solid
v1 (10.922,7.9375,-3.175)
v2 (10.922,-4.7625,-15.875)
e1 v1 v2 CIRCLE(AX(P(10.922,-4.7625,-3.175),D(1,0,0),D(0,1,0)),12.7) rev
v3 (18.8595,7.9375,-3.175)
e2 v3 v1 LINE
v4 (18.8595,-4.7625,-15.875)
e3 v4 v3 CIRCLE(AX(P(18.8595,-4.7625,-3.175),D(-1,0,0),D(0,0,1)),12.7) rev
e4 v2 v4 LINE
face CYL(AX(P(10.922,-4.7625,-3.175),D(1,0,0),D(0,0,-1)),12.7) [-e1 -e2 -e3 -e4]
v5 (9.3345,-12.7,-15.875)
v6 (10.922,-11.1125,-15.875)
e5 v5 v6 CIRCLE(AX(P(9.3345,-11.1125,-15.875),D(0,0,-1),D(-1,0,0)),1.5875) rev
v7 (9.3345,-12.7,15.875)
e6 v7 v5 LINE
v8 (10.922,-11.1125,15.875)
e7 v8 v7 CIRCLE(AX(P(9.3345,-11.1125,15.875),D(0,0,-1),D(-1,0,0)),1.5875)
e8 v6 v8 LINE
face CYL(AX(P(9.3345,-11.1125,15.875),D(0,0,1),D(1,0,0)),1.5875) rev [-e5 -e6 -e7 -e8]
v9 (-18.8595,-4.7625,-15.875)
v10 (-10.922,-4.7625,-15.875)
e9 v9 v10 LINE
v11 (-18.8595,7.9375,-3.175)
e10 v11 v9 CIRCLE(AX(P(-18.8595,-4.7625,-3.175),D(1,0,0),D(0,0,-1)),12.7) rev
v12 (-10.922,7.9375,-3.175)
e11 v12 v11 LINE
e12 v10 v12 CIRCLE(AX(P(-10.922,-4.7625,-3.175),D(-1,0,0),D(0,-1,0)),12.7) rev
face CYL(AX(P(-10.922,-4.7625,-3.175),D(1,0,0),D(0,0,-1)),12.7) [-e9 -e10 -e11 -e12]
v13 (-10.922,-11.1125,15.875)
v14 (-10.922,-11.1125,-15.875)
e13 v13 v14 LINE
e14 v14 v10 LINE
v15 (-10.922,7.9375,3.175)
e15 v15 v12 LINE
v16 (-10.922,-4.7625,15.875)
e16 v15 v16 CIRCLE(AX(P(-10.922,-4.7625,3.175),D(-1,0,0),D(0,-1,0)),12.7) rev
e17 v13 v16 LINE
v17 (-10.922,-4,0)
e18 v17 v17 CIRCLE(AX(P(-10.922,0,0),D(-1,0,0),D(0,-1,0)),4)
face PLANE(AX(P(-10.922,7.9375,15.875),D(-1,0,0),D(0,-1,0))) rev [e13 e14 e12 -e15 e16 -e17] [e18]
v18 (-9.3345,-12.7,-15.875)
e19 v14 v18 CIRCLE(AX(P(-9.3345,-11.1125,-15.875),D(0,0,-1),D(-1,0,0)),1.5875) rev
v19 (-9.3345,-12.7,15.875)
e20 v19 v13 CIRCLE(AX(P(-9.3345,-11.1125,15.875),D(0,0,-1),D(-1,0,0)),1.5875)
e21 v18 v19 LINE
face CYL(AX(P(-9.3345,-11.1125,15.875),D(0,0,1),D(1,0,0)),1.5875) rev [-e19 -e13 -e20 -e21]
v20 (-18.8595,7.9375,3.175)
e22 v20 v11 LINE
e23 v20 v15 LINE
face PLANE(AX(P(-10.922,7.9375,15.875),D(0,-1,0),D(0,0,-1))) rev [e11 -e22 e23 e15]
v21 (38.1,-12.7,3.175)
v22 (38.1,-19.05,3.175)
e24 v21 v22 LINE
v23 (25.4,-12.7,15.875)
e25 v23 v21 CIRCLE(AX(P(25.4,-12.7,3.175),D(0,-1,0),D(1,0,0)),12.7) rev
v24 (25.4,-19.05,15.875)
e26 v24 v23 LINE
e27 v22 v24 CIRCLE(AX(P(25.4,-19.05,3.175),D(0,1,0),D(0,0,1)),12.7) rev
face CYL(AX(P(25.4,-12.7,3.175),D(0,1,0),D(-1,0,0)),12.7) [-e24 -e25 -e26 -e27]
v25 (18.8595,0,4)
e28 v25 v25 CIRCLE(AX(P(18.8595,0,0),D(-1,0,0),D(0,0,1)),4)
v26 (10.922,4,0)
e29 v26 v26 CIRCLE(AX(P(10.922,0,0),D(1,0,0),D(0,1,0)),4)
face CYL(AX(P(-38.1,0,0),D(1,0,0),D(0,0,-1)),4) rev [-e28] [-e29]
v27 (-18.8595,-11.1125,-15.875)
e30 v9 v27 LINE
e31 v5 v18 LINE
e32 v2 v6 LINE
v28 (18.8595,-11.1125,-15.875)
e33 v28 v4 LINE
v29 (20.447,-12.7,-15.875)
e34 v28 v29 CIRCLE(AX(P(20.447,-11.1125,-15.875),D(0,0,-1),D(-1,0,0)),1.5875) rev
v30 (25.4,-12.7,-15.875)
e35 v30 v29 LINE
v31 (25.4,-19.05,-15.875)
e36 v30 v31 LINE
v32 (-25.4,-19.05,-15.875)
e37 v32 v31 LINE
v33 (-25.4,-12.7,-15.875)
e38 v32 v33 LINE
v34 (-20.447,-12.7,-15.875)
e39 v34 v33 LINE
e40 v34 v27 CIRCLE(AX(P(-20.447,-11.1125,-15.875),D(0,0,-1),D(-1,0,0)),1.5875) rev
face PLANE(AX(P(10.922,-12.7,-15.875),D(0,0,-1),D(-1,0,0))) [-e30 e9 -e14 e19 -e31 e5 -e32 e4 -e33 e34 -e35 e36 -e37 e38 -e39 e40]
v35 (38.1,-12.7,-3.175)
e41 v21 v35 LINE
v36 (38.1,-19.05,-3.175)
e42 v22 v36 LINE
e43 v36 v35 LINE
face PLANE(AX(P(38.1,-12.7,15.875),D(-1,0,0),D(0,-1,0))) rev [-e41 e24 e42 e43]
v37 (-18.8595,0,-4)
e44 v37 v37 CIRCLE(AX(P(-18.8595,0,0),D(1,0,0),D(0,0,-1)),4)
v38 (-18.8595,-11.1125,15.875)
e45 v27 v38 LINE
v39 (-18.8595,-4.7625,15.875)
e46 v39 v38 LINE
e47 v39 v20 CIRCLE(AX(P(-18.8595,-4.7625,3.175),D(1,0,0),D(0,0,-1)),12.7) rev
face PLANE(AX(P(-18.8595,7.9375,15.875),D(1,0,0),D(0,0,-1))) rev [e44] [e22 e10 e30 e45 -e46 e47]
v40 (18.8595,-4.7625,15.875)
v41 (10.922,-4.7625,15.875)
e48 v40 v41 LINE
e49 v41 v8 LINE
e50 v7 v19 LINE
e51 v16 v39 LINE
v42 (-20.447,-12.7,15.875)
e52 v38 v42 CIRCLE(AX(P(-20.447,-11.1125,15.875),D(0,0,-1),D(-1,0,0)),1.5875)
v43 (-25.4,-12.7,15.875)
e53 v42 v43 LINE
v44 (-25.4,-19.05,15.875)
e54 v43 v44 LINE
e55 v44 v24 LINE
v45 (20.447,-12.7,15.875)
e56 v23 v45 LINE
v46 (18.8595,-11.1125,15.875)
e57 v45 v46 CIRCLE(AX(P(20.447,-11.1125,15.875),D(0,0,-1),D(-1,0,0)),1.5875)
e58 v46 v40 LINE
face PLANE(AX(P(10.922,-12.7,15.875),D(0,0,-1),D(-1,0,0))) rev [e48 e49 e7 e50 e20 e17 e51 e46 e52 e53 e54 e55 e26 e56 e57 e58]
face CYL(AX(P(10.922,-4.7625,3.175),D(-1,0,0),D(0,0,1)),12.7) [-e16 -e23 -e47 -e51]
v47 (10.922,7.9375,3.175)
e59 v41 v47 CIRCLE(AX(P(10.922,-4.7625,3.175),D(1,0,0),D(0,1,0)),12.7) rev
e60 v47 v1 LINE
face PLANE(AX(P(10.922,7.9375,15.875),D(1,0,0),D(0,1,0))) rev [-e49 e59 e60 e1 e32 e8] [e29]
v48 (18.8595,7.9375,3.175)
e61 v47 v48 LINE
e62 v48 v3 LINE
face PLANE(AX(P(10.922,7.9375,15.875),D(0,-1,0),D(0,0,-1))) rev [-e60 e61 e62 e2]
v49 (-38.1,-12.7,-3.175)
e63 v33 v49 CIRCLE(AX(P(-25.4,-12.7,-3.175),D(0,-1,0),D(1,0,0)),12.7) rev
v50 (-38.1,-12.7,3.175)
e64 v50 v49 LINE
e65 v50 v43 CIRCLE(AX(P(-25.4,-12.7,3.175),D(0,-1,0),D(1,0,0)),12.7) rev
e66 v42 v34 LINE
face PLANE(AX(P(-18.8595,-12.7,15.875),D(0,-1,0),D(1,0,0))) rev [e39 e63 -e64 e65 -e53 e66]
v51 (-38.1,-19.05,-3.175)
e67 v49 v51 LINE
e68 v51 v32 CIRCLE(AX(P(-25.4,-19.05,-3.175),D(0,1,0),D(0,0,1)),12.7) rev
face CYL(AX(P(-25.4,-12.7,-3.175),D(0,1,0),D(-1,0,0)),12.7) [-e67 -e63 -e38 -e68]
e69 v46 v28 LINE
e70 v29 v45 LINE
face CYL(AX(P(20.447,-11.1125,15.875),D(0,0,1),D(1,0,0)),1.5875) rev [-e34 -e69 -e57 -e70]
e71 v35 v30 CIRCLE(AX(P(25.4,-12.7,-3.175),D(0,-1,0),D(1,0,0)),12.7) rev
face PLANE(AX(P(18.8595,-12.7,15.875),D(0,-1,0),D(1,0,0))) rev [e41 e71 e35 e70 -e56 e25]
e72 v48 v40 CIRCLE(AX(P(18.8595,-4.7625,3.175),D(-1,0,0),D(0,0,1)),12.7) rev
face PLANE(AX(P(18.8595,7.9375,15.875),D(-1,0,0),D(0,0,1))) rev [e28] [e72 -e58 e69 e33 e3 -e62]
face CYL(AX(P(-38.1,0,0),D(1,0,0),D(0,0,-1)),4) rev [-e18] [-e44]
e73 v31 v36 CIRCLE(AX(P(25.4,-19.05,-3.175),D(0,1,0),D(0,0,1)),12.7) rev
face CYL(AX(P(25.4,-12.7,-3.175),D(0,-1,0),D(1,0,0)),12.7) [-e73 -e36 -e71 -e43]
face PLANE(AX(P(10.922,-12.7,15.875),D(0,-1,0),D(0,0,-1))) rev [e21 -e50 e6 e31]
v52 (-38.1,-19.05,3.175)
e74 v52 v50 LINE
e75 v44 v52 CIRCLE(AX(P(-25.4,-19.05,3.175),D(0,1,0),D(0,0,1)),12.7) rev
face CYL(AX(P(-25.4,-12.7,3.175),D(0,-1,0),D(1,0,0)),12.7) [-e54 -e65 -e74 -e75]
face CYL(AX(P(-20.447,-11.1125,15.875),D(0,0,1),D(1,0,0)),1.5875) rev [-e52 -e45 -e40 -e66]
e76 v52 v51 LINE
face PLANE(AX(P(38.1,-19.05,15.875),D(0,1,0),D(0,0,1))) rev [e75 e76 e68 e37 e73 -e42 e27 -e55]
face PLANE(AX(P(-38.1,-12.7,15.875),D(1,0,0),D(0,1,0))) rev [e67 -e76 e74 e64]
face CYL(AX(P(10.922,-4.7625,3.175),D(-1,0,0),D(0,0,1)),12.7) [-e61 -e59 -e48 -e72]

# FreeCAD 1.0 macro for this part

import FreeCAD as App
import Part
import Sketcher
Q = App.Units.Quantity


def edges_at(feature, points):
    """Names of the edges that pass closest to the given points."""
    edges = feature.Shape.Edges
    near = lambda p: min(range(len(edges)), key=lambda i: edges[i].distToShape(Part.Vertex(*p))[0])
    return sorted({f"Edge{near(p) + 1}" for p in points})

doc = App.newDocument("Part")
params = doc.addObject("Spreadsheet::Sheet", "Params")
for row, (alias, value) in enumerate([
    ("sketch1_width", "3 in"),
    ("sketch1_width2", "0.86 in"),
    ("sketch1_height", "0.25 in"),
    ("sketch1_width3", "0.3125 in"),
    ("sketch1_height2", "0.8125 in"),
    ("pad1_length", "1.25 in"),
    ("fillet_radius", "0.5 in"),
    ("fillet2_radius", "0.0625 in"),
    ("fillet3_radius", "0.5 in"),
], start=1):
    params.set(f"A{row}", alias)
    params.set(f"B{row}", "=" + value)
    params.setAlias(f"B{row}", alias)

body = doc.addObject("PartDesign::Body", "Body")

sketch1 = body.newObject("Sketcher::SketchObject", "Sketch")
sketch1.AttachmentSupport = (doc.getObject("XY_Plane"), [""])
sketch1.MapMode = "FlatFace"
sketch1.addGeometry([
    Part.LineSegment(App.Vector(19, 8, 0), App.Vector(11, 8, 0)),
    Part.LineSegment(App.Vector(11, 8, 0), App.Vector(11, -13, 0)),
    Part.LineSegment(App.Vector(11, -13, 0), App.Vector(-11, -13, 0)),
    Part.LineSegment(App.Vector(-11, -13, 0), App.Vector(-11, 8, 0)),
    Part.LineSegment(App.Vector(-11, 8, 0), App.Vector(-19, 8, 0)),
    Part.LineSegment(App.Vector(-19, 8, 0), App.Vector(-19, -13, 0)),
    Part.LineSegment(App.Vector(-19, -13, 0), App.Vector(-38, -13, 0)),
    Part.LineSegment(App.Vector(-38, -13, 0), App.Vector(-38, -19, 0)),
    Part.LineSegment(App.Vector(-38, -19, 0), App.Vector(38, -19, 0)),
    Part.LineSegment(App.Vector(38, -19, 0), App.Vector(38, -13, 0)),
    Part.LineSegment(App.Vector(38, -13, 0), App.Vector(19, -13, 0)),
    Part.LineSegment(App.Vector(19, -13, 0), App.Vector(19, 8, 0)),
], False)
sketch1.addConstraint([
    Sketcher.Constraint("Coincident", 0, 2, 1, 1),
    Sketcher.Constraint("Coincident", 1, 2, 2, 1),
    Sketcher.Constraint("Coincident", 2, 2, 3, 1),
    Sketcher.Constraint("Coincident", 3, 2, 4, 1),
    Sketcher.Constraint("Coincident", 4, 2, 5, 1),
    Sketcher.Constraint("Coincident", 5, 2, 6, 1),
    Sketcher.Constraint("Coincident", 6, 2, 7, 1),
    Sketcher.Constraint("Coincident", 7, 2, 8, 1),
    Sketcher.Constraint("Coincident", 8, 2, 9, 1),
    Sketcher.Constraint("Coincident", 9, 2, 10, 1),
    Sketcher.Constraint("Coincident", 10, 2, 11, 1),
    Sketcher.Constraint("Coincident", 11, 2, 0, 1),
    Sketcher.Constraint("Horizontal", 0),
    Sketcher.Constraint("Vertical", 1),
    Sketcher.Constraint("Horizontal", 2),
    Sketcher.Constraint("Vertical", 3),
    Sketcher.Constraint("Horizontal", 4),
    Sketcher.Constraint("Vertical", 5),
    Sketcher.Constraint("Horizontal", 6),
    Sketcher.Constraint("Vertical", 7),
    Sketcher.Constraint("Horizontal", 8),
    Sketcher.Constraint("Vertical", 9),
    Sketcher.Constraint("Horizontal", 10),
    Sketcher.Constraint("Vertical", 11),
    Sketcher.Constraint("Symmetric", 0, 2, 3, 2, -2),
    Sketcher.Constraint("Symmetric", 6, 2, 9, 2, -2),
    Sketcher.Constraint("Horizontal", 2, 2, 5, 2),
    Sketcher.Constraint("Equal", 0, 4),
    Sketcher.Constraint("DistanceX", 8, 1, 8, 2, Q("3 in")),
    Sketcher.Constraint("DistanceX", 2, 2, 2, 1, Q("0.86 in")),
    Sketcher.Constraint("DistanceY", 7, 2, 7, 1, Q("0.25 in")),
    Sketcher.Constraint("DistanceY", 1, 2, -1, 1, Q("0.5 in")),
    Sketcher.Constraint("DistanceX", 0, 2, 0, 1, Q("0.3125 in")),
    Sketcher.Constraint("DistanceY", 1, 2, 1, 1, Q("0.8125 in")),
])
sketch1.setExpression("Constraints[28]", "Params.sketch1_width")
sketch1.setExpression("Constraints[29]", "Params.sketch1_width2")
sketch1.setExpression("Constraints[30]", "Params.sketch1_height")
sketch1.setExpression("Constraints[32]", "Params.sketch1_width3")
sketch1.setExpression("Constraints[33]", "Params.sketch1_height2")
pad1 = body.newObject("PartDesign::Pad", "Pad")
pad1.Profile = sketch1
pad1.setExpression("Length", "Params.pad1_length")
pad1.Midplane = True

sketch2 = body.newObject("Sketcher::SketchObject", "Sketch001")
sketch2.AttachmentSupport = (doc.getObject("YZ_Plane"), [""])
sketch2.MapMode = "FlatFace"
sketch2.addGeometry(Part.Circle(App.Vector(0, 0, 0), App.Vector(0, 0, 1), 4), False)
sketch2.addConstraint([
    Sketcher.Constraint("Coincident", 0, 3, -1, 1),
    Sketcher.Constraint("Diameter", 0, Q("8 mm")),
])
pocket1 = body.newObject("PartDesign::Pocket", "Pocket")
pocket1.Profile = sketch2
pocket1.Type = "ThroughAll"
pocket1.Midplane = True
doc.recompute()

fillet = body.newObject("PartDesign::Fillet", "Fillet")
fillet.Base = (pocket1, edges_at(pocket1, [
    (14.891, 7.938, -15.875),
    (-14.891, 7.938, 15.875),
    (-14.891, 7.938, -15.875),
    (14.891, 7.938, 15.875),
]))
fillet.setExpression("Radius", "Params.fillet_radius")
doc.recompute()

fillet2 = body.newObject("PartDesign::Fillet", "Fillet001")
fillet2.Base = (fillet, edges_at(fillet, [
    (18.86, -12.7, 0),
    (-18.86, -12.7, 0),
    (-10.922, -12.7, 0),
    (10.922, -12.7, 0),
]))
fillet2.setExpression("Radius", "Params.fillet2_radius")
doc.recompute()

fillet3 = body.newObject("PartDesign::Fillet", "Fillet002")
fillet3.Base = (fillet2, edges_at(fillet2, [
    (38.1, -15.875, -15.875),
    (-38.1, -15.875, -15.875),
    (-38.1, -15.875, 15.875),
    (38.1, -15.875, 15.875),
]))
fillet3.setExpression("Radius", "Params.fillet3_radius")

doc.recompute()
